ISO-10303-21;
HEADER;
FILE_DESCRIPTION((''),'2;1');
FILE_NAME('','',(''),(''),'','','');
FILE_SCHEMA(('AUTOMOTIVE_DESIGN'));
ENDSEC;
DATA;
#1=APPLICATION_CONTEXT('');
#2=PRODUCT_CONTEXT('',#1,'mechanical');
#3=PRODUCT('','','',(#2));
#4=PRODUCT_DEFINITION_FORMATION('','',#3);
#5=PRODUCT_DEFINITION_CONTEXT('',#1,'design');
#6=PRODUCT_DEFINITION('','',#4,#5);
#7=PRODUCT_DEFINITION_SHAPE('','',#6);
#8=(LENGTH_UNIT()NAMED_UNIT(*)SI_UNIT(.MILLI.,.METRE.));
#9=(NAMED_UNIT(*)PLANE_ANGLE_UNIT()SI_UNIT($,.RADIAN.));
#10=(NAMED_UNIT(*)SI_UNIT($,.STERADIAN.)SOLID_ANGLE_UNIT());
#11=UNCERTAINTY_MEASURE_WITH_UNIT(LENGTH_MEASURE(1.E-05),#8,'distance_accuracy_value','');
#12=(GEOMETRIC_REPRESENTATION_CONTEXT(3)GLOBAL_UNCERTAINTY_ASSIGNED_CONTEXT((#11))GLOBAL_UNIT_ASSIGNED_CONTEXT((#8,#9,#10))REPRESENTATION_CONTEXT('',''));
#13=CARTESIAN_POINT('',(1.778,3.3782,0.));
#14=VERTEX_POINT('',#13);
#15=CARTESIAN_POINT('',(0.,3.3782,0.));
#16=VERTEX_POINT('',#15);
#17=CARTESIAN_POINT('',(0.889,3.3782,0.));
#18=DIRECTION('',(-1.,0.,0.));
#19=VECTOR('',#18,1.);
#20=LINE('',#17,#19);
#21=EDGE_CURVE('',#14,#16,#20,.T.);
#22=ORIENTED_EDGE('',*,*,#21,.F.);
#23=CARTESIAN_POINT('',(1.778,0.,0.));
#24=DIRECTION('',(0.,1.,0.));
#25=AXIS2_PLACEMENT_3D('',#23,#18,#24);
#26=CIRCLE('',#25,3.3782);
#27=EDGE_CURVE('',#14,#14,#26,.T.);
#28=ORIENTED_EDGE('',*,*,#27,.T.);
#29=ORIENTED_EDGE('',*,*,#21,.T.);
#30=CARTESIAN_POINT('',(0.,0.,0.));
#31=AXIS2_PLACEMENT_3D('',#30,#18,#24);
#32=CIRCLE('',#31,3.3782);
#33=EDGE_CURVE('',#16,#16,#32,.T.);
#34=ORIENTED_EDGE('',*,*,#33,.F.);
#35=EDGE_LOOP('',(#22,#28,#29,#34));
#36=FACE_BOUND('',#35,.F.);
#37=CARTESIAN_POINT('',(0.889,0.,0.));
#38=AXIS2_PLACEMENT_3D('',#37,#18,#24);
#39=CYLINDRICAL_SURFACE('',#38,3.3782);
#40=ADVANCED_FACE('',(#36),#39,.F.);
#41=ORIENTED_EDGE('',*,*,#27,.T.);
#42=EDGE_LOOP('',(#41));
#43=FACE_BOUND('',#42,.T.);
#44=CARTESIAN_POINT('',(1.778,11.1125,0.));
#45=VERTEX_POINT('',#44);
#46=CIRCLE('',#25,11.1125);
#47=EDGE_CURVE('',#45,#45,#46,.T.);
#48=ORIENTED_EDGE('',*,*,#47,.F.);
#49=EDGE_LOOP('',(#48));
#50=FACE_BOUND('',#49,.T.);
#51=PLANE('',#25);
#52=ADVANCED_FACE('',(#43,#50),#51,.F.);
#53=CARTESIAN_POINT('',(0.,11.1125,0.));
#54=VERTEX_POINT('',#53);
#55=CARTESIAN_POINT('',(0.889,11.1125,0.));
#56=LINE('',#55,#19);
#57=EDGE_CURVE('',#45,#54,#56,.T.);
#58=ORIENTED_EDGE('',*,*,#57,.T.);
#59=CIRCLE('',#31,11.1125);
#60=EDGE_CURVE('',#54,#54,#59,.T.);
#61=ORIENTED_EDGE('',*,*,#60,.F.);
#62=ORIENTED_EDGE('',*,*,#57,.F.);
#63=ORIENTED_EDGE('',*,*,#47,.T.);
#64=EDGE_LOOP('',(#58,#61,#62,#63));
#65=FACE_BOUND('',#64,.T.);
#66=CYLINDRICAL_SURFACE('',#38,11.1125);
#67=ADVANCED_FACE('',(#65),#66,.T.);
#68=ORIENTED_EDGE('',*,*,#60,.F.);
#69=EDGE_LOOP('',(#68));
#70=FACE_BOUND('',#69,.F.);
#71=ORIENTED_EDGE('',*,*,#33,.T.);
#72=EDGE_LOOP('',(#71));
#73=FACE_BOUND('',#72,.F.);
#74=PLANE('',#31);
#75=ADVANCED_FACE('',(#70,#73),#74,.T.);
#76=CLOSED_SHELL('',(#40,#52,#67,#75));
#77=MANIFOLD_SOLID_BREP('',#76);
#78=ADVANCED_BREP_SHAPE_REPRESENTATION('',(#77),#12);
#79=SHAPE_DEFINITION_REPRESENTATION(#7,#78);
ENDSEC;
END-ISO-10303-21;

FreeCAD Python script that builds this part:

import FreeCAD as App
import Part
import Sketcher
from FreeCAD import Vector
Q = App.Units.Quantity

doc = App.newDocument("Part")
params = doc.addObject("Spreadsheet::Sheet", "Params")
for row, (alias, value) in enumerate([
    ("sketch1_width", "0.07 in"),
    ("revolution_angle", "360 deg"),
], start=1):
    params.set(f"A{row}", alias)
    params.set(f"B{row}", "=" + value)
    params.setAlias(f"B{row}", alias)

body = doc.addObject("PartDesign::Body", "Body")

# Sketch on XY plane
sketch1 = doc.addObject("Sketcher::SketchObject", "Sketch")
body.addObject(sketch1)
sketch1.AttachmentSupport = (doc.XY_Plane, [""])
sketch1.MapMode = "FlatFace"
sketch1.addGeometry(Part.LineSegment(Vector(1.8, 11.1, 0), Vector(1.8, 3.4, 0)), False)
sketch1.addGeometry(Part.LineSegment(Vector(1.8, 3.4, 0), Vector(0, 3.4, 0)), False)
sketch1.addGeometry(Part.LineSegment(Vector(0, 3.4, 0), Vector(0, 11.1, 0)), False)
sketch1.addGeometry(Part.LineSegment(Vector(0, 11.1, 0), Vector(1.8, 11.1, 0)), False)
sketch1.addConstraint(Sketcher.Constraint("Coincident", 0, 2, 1, 1))
sketch1.addConstraint(Sketcher.Constraint("Coincident", 1, 2, 2, 1))
sketch1.addConstraint(Sketcher.Constraint("Coincident", 2, 2, 3, 1))
sketch1.addConstraint(Sketcher.Constraint("Coincident", 3, 2, 0, 1))
sketch1.addConstraint(Sketcher.Constraint("Vertical", 0))
sketch1.addConstraint(Sketcher.Constraint("Horizontal", 1))
sketch1.addConstraint(Sketcher.Constraint("Vertical", 2))
sketch1.addConstraint(Sketcher.Constraint("Horizontal", 3))
sketch1.addConstraint(Sketcher.Constraint("PointOnObject", 1, 2, -2))
sketch1.addConstraint(Sketcher.Constraint("DistanceX", 1, 2, 1, 1, Q("0.07 in")))
sketch1.addConstraint(Sketcher.Constraint("DistanceY", 0, 2, 0, 1, Q("0.3045 in")))
sketch1.addConstraint(Sketcher.Constraint("DistanceY", -1, 1, 0, 2, Q("0.133 in")))
sketch1.setExpression("Constraints[9]", "Params.sketch1_width")
revolution = doc.addObject("PartDesign::Revolution", "Revolution")
body.addObject(revolution)
revolution.Profile = sketch1
revolution.ReferenceAxis = (sketch1, ["H_Axis"])
revolution.setExpression("Angle", "Params.revolution_angle")

doc.recompute()
